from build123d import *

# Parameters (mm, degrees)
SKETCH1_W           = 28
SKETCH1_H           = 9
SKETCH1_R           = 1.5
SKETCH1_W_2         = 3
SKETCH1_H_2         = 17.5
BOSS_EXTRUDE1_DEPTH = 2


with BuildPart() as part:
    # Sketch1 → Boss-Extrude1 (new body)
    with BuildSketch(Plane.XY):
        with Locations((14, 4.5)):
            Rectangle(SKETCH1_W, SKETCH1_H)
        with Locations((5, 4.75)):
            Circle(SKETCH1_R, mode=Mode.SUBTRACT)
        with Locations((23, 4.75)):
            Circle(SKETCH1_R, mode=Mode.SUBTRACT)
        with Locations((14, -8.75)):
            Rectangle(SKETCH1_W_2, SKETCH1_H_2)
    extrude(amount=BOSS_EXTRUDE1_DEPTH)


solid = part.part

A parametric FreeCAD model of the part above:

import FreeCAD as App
import Part
import Sketcher

V = App.Vector

doc = App.newDocument("Part")
params = doc.addObject("Spreadsheet::Sheet", "Params")
for row, (alias, value) in enumerate([
    ("sketch1_diameter", "3 mm"),
    ("sketch1_width", "3 mm"),
    ("sketch1_width2", "28 mm"),
    ("sketch1_height", "9 mm"),
    ("sketch1_height2", "17.5 mm"),
    ("pad1_length", "2 mm"),
], start=1):
    params.set(f"A{row}", alias)
    params.set(f"B{row}", "=" + value)
    params.setAlias(f"B{row}", alias)

body = doc.addObject("PartDesign::Body", "Body")

sketch1 = body.newObject("Sketcher::SketchObject", "Sketch")
sketch1.AttachmentSupport = (doc.getObject("XY_Plane"), [""])
sketch1.MapMode = "FlatFace"
sketch1.addGeometry([
    Part.LineSegment(V(0, 9, 0), V(0, 0, 0)),
    Part.LineSegment(V(0, 0, 0), V(12.5, 0, 0)),
    Part.LineSegment(V(12.5, 0, 0), V(12.5, -17.5, 0)),
    Part.LineSegment(V(12.5, -17.5, 0), V(15.5, -17.5, 0)),
    Part.LineSegment(V(15.5, -17.5, 0), V(15.5, 0, 0)),
    Part.LineSegment(V(15.5, 0, 0), V(28, 0, 0)),
    Part.LineSegment(V(28, 0, 0), V(28, 9, 0)),
    Part.LineSegment(V(28, 9, 0), V(0, 9, 0)),
    Part.Circle(V(5, 4.8, 0), V(0, 0, 1), 1.5),
    Part.Circle(V(23, 4.8, 0), V(0, 0, 1), 1.5),
], False)
sketch1.addConstraint([
    Sketcher.Constraint("Coincident", 0, 2, 1, 1),
    Sketcher.Constraint("Coincident", 1, 2, 2, 1),
    Sketcher.Constraint("Coincident", 2, 2, 3, 1),
    Sketcher.Constraint("Coincident", 3, 2, 4, 1),
    Sketcher.Constraint("Coincident", 4, 2, 5, 1),
    Sketcher.Constraint("Coincident", 5, 2, 6, 1),
    Sketcher.Constraint("Coincident", 6, 2, 7, 1),
    Sketcher.Constraint("Coincident", 7, 2, 0, 1),
    Sketcher.Constraint("Vertical", 0),
    Sketcher.Constraint("Horizontal", 1),
    Sketcher.Constraint("Vertical", 2),
    Sketcher.Constraint("Horizontal", 3),
    Sketcher.Constraint("Vertical", 4),
    Sketcher.Constraint("Horizontal", 5),
    Sketcher.Constraint("Vertical", 6),
    Sketcher.Constraint("Horizontal", 7),
    Sketcher.Constraint("Coincident", 0, 2, -1, 1),
    Sketcher.Constraint("Equal", 8, 9),
    Sketcher.Constraint("PointOnObject", 4, 2, -1),
    Sketcher.Constraint("Horizontal", 8, 3, 9, 3),
    Sketcher.Constraint("Equal", 1, 5),
    Sketcher.Constraint("Diameter", 8, 3.0),
    Sketcher.Constraint("DistanceX", 3, 1, 3, 2, 3.0),
    Sketcher.Constraint("DistanceX", 7, 2, 7, 1, 28.0),
    Sketcher.Constraint("DistanceY", 0, 2, 0, 1, 9.0),
    Sketcher.Constraint("DistanceY", 2, 2, 2, 1, 17.5),
    Sketcher.Constraint("DistanceX", -1, 1, 8, 3, 5.0),
    Sketcher.Constraint("DistanceX", -1, 1, 9, 3, 23.0),
    Sketcher.Constraint("DistanceY", -1, 1, 8, 3, 4.75),
])
sketch1.setExpression("Constraints[21]", "Params.sketch1_diameter")
sketch1.setExpression("Constraints[22]", "Params.sketch1_width")
sketch1.setExpression("Constraints[23]", "Params.sketch1_width2")
sketch1.setExpression("Constraints[24]", "Params.sketch1_height")
sketch1.setExpression("Constraints[25]", "Params.sketch1_height2")
pad1 = body.newObject("PartDesign::Pad", "Pad")
pad1.Profile = sketch1
pad1.setExpression("Length", "Params.pad1_length")

doc.recompute()
